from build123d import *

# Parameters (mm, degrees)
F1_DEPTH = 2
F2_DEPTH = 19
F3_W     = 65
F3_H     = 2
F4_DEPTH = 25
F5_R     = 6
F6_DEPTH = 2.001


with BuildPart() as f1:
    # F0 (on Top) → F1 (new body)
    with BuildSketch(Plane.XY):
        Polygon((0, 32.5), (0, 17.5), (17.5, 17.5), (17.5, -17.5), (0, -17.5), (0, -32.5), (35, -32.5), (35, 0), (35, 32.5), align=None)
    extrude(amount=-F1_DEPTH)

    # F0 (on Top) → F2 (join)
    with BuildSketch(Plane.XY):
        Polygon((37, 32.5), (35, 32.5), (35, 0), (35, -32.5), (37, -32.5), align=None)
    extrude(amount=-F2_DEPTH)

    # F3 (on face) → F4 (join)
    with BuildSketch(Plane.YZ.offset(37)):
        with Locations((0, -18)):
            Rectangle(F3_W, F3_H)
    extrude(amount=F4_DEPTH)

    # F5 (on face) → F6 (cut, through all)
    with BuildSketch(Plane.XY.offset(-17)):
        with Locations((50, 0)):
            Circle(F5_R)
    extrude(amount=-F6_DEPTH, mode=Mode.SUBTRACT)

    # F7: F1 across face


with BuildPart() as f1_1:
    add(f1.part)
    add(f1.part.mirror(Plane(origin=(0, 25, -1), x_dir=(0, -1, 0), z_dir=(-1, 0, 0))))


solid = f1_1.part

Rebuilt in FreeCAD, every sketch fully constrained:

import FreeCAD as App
import Part
import Sketcher

doc = App.newDocument("Part")
body = doc.addObject("PartDesign::Body", "Body")

sketch1 = body.newObject("Sketcher::SketchObject", "Sketch")
sketch1.AttachmentSupport = (doc.getObject("XY_Plane"), [""])
sketch1.MapMode = "FlatFace"
sketch1.addGeometry([
    Part.LineSegment(App.Vector(0, 32, 0), App.Vector(0, 18, 0)),
    Part.LineSegment(App.Vector(0, 18, 0), App.Vector(18, 18, 0)),
    Part.LineSegment(App.Vector(18, 18, 0), App.Vector(18, -18, 0)),
    Part.LineSegment(App.Vector(18, -18, 0), App.Vector(0, -18, 0)),
    Part.LineSegment(App.Vector(0, -18, 0), App.Vector(0, -32, 0)),
    Part.LineSegment(App.Vector(0, -32, 0), App.Vector(35, -32, 0)),
    Part.LineSegment(App.Vector(35, -32, 0), App.Vector(35, 32, 0)),
    Part.LineSegment(App.Vector(35, 32, 0), App.Vector(0, 32, 0)),
], False)
sketch1.addConstraint([
    Sketcher.Constraint("Coincident", 0, 2, 1, 1),
    Sketcher.Constraint("Coincident", 1, 2, 2, 1),
    Sketcher.Constraint("Coincident", 2, 2, 3, 1),
    Sketcher.Constraint("Coincident", 3, 2, 4, 1),
    Sketcher.Constraint("Coincident", 4, 2, 5, 1),
    Sketcher.Constraint("Coincident", 5, 2, 6, 1),
    Sketcher.Constraint("Coincident", 6, 2, 7, 1),
    Sketcher.Constraint("Coincident", 7, 2, 0, 1),
    Sketcher.Constraint("Vertical", 0),
    Sketcher.Constraint("Horizontal", 1),
    Sketcher.Constraint("Vertical", 2),
    Sketcher.Constraint("Horizontal", 3),
    Sketcher.Constraint("Vertical", 4),
    Sketcher.Constraint("Horizontal", 5),
    Sketcher.Constraint("Vertical", 6),
    Sketcher.Constraint("Horizontal", 7),
    Sketcher.Constraint("Symmetric", 0, 2, 3, 2, -1, 1),
    Sketcher.Constraint("Symmetric", 4, 2, 7, 2, -1),
    Sketcher.Constraint("Equal", 7, 2),
    Sketcher.Constraint("DistanceX", 5, 1, 5, 2, 35.0),
    Sketcher.Constraint("DistanceY", 0, 2, 0, 1, 15.0),
    Sketcher.Constraint("DistanceX", 1, 1, 1, 2, 17.5),
])
pad1 = body.newObject("PartDesign::Pad", "Pad")
pad1.Profile = sketch1
pad1.Length = 2
pad1.Reversed = True

sketch2 = body.newObject("Sketcher::SketchObject", "Sketch001")
sketch2.AttachmentSupport = (doc.getObject("XY_Plane"), [""])
sketch2.MapMode = "FlatFace"
sketch2.addGeometry([
    Part.LineSegment(App.Vector(37, 32.5, 0), App.Vector(35, 32.5, 0)),
    Part.LineSegment(App.Vector(35, 32.5, 0), App.Vector(35, -32.5, 0)),
    Part.LineSegment(App.Vector(35, -32.5, 0), App.Vector(37, -32.5, 0)),
    Part.LineSegment(App.Vector(37, -32.5, 0), App.Vector(37, 32.5, 0)),
], False)
sketch2.addConstraint([
    Sketcher.Constraint("Coincident", 0, 2, 1, 1),
    Sketcher.Constraint("Coincident", 1, 2, 2, 1),
    Sketcher.Constraint("Coincident", 2, 2, 3, 1),
    Sketcher.Constraint("Coincident", 3, 2, 0, 1),
    Sketcher.Constraint("Horizontal", 0),
    Sketcher.Constraint("Vertical", 1),
    Sketcher.Constraint("Horizontal", 2),
    Sketcher.Constraint("Vertical", 3),
    Sketcher.Constraint("DistanceX", 0, 2, 0, 1, 2.0),
    Sketcher.Constraint("DistanceY", 1, 2, 1, 1, 65.0),
    Sketcher.Constraint("DistanceX", -1, 1, 0, 2, 35.0),
    Sketcher.Constraint("DistanceY", -1, 1, 0, 2, 32.5),
])
pad2 = body.newObject("PartDesign::Pad", "Pad001")
pad2.Profile = sketch2
pad2.Length = 19
pad2.Reversed = True

sketch3 = body.newObject("Sketcher::SketchObject", "Sketch002")
sketch3.AttachmentSupport = (doc.getObject("YZ_Plane"), [""])
sketch3.MapMode = "FlatFace"
sketch3.AttachmentOffset = App.Placement(App.Vector(0, 0, 37), App.Rotation())
sketch3.addGeometry([
    Part.LineSegment(App.Vector(-32.5, -17, 0), App.Vector(-32.5, -19, 0)),
    Part.LineSegment(App.Vector(-32.5, -19, 0), App.Vector(32.5, -19, 0)),
    Part.LineSegment(App.Vector(32.5, -19, 0), App.Vector(32.5, -17, 0)),
    Part.LineSegment(App.Vector(32.5, -17, 0), App.Vector(-32.5, -17, 0)),
], False)
sketch3.addConstraint([
    Sketcher.Constraint("Coincident", 0, 2, 1, 1),
    Sketcher.Constraint("Coincident", 1, 2, 2, 1),
    Sketcher.Constraint("Coincident", 2, 2, 3, 1),
    Sketcher.Constraint("Coincident", 3, 2, 0, 1),
    Sketcher.Constraint("Vertical", 0),
    Sketcher.Constraint("Horizontal", 1),
    Sketcher.Constraint("Vertical", 2),
    Sketcher.Constraint("Horizontal", 3),
    Sketcher.Constraint("DistanceX", 1, 1, 1, 2, 65.0),
    Sketcher.Constraint("DistanceY", 0, 2, 0, 1, 2.0),
    Sketcher.Constraint("DistanceY", 0, 2, -1, 1, 19.0),
    Sketcher.Constraint("DistanceX", 0, 2, -1, 1, 32.5),
])
pad3 = body.newObject("PartDesign::Pad", "Pad002")
pad3.Profile = sketch3
pad3.Length = 25

sketch4 = body.newObject("Sketcher::SketchObject", "Sketch003")
sketch4.AttachmentSupport = (doc.getObject("XY_Plane"), [""])
sketch4.MapMode = "FlatFace"
sketch4.AttachmentOffset = App.Placement(App.Vector(0, 0, -17), App.Rotation())
sketch4.addGeometry(Part.Circle(App.Vector(50, 0, 0), App.Vector(0, 0, 1), 6), False)
sketch4.addConstraint([
    Sketcher.Constraint("PointOnObject", 0, 3, -1),
    Sketcher.Constraint("Diameter", 0, 12.0),
    Sketcher.Constraint("DistanceX", -1, 1, 0, 3, 50.0),
])
pocket1 = body.newObject("PartDesign::Pocket", "Pocket")
pocket1.Profile = sketch4
pocket1.Type = "ThroughAll"
body2 = doc.addObject("PartDesign::Body", "Body001")
doc.recompute()

body2.BaseFeature = body
doc.recompute()

mirroring = doc.addObject("Part::Mirroring", "Mirroring")
mirroring.Source = body
mirroring.Base = App.Vector(0, 25, -1)
mirroring.Normal = App.Vector(-1, 0, 0)
body3 = doc.addObject("PartDesign::Body", "Body002")
body3.BaseFeature = mirroring
boolean = body2.newObject("PartDesign::Boolean", "Boolean")
boolean.Type = "Fuse"
boolean.addObjects([body3])
doc.recompute()
mirroring.Visibility = False

doc.recompute()
